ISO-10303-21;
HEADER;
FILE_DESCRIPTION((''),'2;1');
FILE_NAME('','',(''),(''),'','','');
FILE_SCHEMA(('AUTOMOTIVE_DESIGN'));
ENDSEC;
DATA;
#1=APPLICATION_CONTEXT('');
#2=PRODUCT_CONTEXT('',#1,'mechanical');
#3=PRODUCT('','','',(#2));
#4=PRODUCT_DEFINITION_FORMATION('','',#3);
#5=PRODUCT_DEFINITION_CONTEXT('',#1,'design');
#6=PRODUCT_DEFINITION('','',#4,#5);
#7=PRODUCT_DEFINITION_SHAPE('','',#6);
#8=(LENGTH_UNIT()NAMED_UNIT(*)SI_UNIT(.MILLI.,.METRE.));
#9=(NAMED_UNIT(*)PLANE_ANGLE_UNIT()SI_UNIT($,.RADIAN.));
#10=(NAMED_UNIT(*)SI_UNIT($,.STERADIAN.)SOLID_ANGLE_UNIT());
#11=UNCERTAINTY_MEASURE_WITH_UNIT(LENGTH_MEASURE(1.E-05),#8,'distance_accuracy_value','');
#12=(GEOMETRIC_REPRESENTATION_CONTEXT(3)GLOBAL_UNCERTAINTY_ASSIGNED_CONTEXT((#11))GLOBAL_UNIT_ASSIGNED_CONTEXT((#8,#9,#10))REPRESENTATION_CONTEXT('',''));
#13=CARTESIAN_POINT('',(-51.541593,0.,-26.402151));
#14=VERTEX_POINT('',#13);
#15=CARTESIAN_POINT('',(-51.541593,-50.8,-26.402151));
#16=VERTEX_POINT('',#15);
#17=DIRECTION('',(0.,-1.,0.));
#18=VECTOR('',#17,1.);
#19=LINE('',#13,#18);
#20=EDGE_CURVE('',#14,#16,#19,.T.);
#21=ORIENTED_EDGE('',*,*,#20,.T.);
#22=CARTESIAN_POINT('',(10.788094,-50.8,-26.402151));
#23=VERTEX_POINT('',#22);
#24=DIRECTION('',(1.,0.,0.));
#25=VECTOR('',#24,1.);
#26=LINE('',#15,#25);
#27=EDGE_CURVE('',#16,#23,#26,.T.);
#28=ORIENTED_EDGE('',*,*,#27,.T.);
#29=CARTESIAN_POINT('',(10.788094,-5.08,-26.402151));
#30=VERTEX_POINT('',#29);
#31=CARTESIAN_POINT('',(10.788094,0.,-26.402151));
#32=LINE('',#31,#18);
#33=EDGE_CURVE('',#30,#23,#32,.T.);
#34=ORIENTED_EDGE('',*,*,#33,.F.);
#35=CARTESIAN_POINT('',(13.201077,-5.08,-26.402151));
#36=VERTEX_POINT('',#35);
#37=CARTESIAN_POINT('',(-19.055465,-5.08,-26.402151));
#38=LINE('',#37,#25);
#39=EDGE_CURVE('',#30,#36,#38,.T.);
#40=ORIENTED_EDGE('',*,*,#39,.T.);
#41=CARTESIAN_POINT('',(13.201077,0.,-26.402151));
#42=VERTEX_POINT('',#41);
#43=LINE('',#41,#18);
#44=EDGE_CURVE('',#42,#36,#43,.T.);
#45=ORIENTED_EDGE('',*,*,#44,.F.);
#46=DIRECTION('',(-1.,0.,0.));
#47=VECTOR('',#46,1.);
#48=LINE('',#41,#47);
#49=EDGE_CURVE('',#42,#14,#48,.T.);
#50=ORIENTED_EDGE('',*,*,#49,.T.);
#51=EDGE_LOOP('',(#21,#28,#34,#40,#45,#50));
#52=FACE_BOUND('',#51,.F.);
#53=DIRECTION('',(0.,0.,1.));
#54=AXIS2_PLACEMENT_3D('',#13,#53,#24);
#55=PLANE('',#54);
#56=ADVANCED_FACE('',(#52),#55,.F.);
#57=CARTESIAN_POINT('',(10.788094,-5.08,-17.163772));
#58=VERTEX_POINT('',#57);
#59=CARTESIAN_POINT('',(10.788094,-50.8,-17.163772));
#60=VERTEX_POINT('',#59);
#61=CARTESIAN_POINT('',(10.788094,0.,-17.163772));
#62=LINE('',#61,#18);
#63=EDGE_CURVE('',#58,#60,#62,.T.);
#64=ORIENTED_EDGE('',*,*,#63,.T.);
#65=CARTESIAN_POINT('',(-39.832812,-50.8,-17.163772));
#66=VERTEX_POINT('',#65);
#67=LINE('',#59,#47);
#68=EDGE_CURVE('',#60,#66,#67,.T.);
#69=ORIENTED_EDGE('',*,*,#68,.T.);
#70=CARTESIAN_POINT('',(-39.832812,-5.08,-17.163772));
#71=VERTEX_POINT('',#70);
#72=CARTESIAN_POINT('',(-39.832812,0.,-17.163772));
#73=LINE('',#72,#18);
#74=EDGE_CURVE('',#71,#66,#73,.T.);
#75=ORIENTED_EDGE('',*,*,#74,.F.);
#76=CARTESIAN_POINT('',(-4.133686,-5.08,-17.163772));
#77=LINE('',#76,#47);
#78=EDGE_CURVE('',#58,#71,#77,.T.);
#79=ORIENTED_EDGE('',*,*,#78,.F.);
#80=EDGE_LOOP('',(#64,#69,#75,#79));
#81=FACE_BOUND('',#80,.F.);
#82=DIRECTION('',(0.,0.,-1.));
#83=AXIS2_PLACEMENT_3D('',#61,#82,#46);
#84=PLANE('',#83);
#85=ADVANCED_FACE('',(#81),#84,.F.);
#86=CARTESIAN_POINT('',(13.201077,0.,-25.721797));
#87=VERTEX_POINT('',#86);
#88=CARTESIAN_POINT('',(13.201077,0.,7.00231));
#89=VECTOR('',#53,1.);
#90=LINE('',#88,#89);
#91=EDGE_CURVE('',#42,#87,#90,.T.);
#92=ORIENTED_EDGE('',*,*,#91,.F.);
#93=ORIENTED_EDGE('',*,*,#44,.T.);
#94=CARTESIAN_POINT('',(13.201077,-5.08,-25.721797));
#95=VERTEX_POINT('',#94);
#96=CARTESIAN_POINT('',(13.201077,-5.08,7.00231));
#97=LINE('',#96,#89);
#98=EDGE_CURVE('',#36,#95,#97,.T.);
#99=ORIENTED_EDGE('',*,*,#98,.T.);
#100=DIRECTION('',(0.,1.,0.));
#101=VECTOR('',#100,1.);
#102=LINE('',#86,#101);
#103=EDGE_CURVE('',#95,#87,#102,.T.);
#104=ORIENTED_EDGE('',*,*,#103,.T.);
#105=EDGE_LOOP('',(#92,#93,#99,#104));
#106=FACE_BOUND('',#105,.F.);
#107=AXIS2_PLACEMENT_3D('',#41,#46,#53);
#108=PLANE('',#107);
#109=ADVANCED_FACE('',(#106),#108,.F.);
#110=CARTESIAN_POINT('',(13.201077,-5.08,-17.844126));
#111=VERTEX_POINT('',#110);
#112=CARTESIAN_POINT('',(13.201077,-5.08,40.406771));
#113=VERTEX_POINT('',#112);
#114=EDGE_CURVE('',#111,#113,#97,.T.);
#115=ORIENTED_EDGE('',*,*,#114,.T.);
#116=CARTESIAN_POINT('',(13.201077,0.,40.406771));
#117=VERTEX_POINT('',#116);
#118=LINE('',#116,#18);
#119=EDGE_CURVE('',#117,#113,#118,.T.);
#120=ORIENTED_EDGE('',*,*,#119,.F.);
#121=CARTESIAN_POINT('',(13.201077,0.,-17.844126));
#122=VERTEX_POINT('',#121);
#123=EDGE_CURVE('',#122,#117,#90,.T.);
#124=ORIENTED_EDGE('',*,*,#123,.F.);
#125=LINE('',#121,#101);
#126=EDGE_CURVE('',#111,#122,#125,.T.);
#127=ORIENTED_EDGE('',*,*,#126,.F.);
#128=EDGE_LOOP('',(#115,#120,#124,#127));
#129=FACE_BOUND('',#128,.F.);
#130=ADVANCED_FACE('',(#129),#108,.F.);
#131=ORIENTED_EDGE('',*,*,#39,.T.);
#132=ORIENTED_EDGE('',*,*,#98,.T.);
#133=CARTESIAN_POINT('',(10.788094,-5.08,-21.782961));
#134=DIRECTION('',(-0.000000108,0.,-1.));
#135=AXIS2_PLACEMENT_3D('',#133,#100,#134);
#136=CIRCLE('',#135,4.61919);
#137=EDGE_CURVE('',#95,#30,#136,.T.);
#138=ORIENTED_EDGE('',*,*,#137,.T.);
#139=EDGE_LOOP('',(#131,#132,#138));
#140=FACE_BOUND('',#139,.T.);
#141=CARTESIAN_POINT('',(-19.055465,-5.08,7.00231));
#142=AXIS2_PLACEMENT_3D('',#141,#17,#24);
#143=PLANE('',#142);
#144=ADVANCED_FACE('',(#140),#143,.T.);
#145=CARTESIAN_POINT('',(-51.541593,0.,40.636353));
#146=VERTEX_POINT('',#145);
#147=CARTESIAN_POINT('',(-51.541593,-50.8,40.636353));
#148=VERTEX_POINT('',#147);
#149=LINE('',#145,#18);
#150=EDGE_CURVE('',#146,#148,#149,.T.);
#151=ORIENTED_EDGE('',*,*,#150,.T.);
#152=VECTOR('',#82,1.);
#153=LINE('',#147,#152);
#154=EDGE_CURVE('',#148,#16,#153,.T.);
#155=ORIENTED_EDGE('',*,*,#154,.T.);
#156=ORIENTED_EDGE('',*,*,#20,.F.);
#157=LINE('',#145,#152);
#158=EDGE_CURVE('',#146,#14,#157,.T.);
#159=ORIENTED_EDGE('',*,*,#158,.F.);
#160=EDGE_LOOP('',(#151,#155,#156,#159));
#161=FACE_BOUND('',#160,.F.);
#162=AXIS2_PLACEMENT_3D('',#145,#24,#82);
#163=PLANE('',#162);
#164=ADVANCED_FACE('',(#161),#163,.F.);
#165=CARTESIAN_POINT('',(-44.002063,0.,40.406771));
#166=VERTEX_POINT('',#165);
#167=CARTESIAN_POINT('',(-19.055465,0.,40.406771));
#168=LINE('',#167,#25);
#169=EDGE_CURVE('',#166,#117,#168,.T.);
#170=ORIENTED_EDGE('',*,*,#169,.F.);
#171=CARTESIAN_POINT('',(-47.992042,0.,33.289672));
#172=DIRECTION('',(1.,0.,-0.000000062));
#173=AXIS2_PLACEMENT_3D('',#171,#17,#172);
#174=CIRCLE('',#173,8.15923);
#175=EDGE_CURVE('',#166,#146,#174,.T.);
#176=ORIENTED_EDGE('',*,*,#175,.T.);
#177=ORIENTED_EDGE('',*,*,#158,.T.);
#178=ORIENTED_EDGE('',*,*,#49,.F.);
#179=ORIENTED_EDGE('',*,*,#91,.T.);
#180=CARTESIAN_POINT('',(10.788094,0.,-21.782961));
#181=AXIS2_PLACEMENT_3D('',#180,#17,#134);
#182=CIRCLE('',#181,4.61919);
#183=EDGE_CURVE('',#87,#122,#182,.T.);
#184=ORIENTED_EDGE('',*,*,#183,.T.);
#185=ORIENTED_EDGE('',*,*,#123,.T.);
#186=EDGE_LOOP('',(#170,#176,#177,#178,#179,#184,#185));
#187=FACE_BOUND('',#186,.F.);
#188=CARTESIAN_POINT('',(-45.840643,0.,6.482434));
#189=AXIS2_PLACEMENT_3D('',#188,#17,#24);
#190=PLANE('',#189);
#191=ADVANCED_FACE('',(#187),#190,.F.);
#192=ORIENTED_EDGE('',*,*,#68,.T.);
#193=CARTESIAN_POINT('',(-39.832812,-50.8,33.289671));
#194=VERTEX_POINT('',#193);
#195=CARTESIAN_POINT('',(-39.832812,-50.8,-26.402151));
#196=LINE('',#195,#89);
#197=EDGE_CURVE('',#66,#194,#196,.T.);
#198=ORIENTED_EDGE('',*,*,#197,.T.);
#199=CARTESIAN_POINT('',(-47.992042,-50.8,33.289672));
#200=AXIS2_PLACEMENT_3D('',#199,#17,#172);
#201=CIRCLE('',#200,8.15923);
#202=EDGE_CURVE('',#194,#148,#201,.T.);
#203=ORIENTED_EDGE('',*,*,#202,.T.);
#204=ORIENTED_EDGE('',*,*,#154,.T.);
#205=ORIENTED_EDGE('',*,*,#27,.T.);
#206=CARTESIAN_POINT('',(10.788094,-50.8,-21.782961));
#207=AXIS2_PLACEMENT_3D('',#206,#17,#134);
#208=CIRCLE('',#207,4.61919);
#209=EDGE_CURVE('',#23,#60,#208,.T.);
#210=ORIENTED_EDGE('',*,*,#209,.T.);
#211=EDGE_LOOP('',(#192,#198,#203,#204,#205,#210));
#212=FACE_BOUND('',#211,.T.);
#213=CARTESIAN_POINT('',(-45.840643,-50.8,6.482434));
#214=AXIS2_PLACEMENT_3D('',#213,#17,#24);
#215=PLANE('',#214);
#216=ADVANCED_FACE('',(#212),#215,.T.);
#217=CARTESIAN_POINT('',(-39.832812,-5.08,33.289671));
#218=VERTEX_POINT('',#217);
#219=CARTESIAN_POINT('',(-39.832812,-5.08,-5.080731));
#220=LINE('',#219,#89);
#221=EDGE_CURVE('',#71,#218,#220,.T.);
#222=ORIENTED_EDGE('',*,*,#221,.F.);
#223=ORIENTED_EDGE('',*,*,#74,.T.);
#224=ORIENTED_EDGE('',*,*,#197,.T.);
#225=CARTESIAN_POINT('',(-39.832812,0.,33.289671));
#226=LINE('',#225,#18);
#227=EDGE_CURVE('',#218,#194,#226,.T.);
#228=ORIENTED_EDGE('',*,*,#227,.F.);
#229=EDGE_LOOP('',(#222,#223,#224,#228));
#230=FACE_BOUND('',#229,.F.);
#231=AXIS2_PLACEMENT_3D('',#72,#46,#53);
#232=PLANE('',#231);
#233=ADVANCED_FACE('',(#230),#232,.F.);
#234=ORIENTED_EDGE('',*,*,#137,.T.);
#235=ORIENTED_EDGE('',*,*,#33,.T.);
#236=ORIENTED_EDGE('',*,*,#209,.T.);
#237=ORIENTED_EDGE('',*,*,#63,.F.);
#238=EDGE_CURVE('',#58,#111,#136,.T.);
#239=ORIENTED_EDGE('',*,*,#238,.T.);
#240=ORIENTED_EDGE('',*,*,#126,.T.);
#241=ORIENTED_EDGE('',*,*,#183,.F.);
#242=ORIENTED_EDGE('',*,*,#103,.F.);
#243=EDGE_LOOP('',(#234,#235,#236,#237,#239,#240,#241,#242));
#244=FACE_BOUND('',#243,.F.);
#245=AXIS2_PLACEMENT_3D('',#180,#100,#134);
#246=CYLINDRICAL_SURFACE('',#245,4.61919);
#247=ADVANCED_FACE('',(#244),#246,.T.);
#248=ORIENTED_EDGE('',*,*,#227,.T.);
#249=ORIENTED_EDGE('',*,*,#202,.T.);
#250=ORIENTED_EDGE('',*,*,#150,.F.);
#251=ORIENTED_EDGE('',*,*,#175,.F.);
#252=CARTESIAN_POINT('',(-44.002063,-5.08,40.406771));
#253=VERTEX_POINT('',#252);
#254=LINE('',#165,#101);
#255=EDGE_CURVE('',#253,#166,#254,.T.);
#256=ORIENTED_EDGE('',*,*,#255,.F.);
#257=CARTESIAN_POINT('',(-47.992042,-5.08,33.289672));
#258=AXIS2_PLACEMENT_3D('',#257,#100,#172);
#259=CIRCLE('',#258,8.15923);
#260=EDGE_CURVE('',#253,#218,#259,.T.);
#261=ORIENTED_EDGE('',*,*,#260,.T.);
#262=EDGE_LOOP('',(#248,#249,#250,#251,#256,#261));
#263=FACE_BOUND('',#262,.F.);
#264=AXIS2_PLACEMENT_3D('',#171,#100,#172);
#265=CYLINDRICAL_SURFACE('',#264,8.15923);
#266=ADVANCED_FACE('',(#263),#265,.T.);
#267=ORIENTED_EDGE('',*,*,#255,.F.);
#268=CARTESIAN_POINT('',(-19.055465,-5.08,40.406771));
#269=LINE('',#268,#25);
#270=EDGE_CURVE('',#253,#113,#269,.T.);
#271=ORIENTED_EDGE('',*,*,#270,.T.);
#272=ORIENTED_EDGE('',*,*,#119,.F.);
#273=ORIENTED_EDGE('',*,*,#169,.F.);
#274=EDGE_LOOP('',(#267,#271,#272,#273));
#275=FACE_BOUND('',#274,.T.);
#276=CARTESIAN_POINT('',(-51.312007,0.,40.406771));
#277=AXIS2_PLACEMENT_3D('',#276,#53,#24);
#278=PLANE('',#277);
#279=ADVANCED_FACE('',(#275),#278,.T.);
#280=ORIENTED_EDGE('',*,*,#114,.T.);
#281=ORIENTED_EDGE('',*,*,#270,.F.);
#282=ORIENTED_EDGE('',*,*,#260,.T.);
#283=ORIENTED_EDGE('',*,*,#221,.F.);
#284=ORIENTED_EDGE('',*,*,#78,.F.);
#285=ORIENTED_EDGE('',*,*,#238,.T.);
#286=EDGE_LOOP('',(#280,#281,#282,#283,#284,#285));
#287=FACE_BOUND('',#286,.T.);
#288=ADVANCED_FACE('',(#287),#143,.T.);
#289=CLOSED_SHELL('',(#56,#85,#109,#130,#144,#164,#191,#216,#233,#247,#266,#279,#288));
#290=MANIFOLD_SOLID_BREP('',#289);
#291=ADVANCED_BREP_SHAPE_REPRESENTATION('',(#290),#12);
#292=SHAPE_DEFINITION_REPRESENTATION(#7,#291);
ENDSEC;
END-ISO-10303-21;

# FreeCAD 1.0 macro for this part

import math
import FreeCAD as App
import Part
import Sketcher
from FreeCAD import Vector
Q = App.Units.Quantity

doc = App.newDocument("Part")
body = doc.addObject("PartDesign::Body", "Body")

sketch1 = body.newObject("Sketcher::SketchObject", "Sketch")
sketch1.AttachmentSupport = (doc.getObject("XZ_Plane"), [""])
sketch1.MapMode = "FlatFace"
sketch1.addGeometry([
    Part.ArcOfCircle(Part.Circle(Vector(-48, 33.3, 0), Vector(0, 0, 1), 8.2), math.radians(0), math.radians(116)),
    Part.LineSegment(Vector(-51.5, 40.6, 0), Vector(-51.5, -26.4, 0)),
    Part.LineSegment(Vector(-51.5, -26.4, 0), Vector(10.8, -26.4, 0)),
    Part.ArcOfCircle(Part.Circle(Vector(10.8, -21.8, 0), Vector(0, 0, 1), 4.6), math.radians(-90), math.radians(90)),
    Part.LineSegment(Vector(10.8, -17.2, 0), Vector(-39.8, -17.2, 0)),
    Part.LineSegment(Vector(-39.8, -17.2, 0), Vector(-39.8, 33.3, 0)),
], False)
sketch1.addConstraint([
    Sketcher.Constraint("Coincident", 0, 2, 1, 1),
    Sketcher.Constraint("Coincident", 1, 2, 2, 1),
    Sketcher.Constraint("Tangent", 2, 2, 3, 1),
    Sketcher.Constraint("Tangent", 3, 2, 4, 1),
    Sketcher.Constraint("Coincident", 4, 2, 5, 1),
    Sketcher.Constraint("Tangent", 5, 2, 0, 1),
    Sketcher.Constraint("Vertical", 1),
    Sketcher.Constraint("Horizontal", 2),
    Sketcher.Constraint("Horizontal", 4),
    Sketcher.Constraint("Vertical", 5),
    Sketcher.Constraint("Radius", 0, Q("8.15923 mm")),
    Sketcher.Constraint("Radius", 3, Q("4.61919 mm")),
    Sketcher.Constraint("DistanceX", 2, 1, 2, 2, Q("62.329687 mm")),
    Sketcher.Constraint("DistanceX", 4, 2, 4, 1, Q("50.620906 mm")),
    Sketcher.Constraint("DistanceY", 1, 2, 1, 1, Q("67.038504 mm")),
    Sketcher.Constraint("DistanceY", -1, 1, 0, 3, Q("33.289672 mm")),
    Sketcher.Constraint("DistanceX", 4, 2, -1, 1, Q("39.832812 mm")),
])
pad1 = body.newObject("PartDesign::Pad", "Pad")
pad1.Profile = sketch1
pad1.Length = Q("2 in")

sketch2 = body.newObject("Sketcher::SketchObject", "Sketch001")
sketch2.AttachmentSupport = (doc.getObject("XZ_Plane"), [""])
sketch2.MapMode = "FlatFace"
sketch2.addGeometry([
    Part.LineSegment(Vector(-51, 40, 0), Vector(-51, -26, 0)),
    Part.LineSegment(Vector(-51, -26, 0), Vector(13, -26, 0)),
    Part.LineSegment(Vector(13, -26, 0), Vector(13, 40, 0)),
    Part.LineSegment(Vector(13, 40, 0), Vector(-51, 40, 0)),
], False)
sketch2.addConstraint([
    Sketcher.Constraint("Coincident", 0, 2, 1, 1),
    Sketcher.Constraint("Coincident", 1, 2, 2, 1),
    Sketcher.Constraint("Coincident", 2, 2, 3, 1),
    Sketcher.Constraint("Coincident", 3, 2, 0, 1),
    Sketcher.Constraint("Vertical", 0),
    Sketcher.Constraint("Horizontal", 1),
    Sketcher.Constraint("Vertical", 2),
    Sketcher.Constraint("Horizontal", 3),
    Sketcher.Constraint("DistanceY", 0, 2, 0, 1, Q("66.808922 mm")),
    Sketcher.Constraint("DistanceX", 1, 1, 1, 2, Q("64.513084 mm")),
    Sketcher.Constraint("DistanceY", 0, 2, -1, 1, Q("26.402151 mm")),
    Sketcher.Constraint("DistanceX", 0, 2, -1, 1, Q("51.312007 mm")),
])
pad2 = body.newObject("PartDesign::Pad", "Pad001")
pad2.Profile = sketch2
pad2.Length = Q("0.2 in")

doc.recompute()
